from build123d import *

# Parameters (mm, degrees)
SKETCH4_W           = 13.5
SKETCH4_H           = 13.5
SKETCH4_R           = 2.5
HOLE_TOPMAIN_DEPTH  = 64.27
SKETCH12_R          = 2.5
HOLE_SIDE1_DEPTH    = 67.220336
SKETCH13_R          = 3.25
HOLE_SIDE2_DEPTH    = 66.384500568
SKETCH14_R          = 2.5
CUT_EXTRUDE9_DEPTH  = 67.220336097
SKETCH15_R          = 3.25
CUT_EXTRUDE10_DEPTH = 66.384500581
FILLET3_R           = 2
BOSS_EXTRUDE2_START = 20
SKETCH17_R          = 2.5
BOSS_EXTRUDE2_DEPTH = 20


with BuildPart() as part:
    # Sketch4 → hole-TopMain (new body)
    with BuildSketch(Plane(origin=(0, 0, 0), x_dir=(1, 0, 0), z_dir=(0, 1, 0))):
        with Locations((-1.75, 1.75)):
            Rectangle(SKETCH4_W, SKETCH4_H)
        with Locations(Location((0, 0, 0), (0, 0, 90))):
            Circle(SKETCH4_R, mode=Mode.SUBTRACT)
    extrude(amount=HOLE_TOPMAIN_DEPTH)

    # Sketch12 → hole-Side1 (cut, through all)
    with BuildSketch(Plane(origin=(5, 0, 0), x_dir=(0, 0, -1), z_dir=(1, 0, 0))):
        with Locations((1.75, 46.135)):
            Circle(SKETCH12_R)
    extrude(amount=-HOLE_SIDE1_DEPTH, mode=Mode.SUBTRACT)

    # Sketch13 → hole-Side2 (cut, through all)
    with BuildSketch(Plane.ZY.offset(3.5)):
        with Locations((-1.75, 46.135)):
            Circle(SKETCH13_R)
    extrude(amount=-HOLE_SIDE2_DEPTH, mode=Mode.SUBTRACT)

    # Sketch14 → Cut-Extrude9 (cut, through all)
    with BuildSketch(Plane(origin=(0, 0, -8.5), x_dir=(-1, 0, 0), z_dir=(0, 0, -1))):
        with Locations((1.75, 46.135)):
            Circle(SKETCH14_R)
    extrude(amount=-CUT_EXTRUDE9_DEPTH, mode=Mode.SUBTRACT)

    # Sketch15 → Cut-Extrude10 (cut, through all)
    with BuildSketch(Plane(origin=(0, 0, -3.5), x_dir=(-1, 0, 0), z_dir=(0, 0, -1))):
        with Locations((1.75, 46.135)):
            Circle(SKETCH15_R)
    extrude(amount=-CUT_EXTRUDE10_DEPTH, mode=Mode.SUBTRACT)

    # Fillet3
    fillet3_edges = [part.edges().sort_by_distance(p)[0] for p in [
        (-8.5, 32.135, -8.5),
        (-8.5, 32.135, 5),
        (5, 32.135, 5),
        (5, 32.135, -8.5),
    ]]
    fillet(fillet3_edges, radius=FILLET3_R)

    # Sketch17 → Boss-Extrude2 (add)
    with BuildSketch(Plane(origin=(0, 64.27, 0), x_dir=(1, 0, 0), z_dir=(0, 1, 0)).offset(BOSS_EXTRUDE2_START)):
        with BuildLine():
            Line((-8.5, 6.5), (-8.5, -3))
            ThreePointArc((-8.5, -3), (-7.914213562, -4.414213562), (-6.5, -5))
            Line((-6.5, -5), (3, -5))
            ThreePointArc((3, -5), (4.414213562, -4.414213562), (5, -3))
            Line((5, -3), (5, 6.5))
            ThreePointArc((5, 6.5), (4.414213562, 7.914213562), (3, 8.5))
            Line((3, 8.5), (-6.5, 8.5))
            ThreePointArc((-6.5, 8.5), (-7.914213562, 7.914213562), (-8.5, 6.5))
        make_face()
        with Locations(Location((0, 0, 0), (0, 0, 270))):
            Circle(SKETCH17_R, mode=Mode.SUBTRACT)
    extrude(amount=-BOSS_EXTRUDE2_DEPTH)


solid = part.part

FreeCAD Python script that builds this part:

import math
import FreeCAD as App
import Part
import Sketcher

V = App.Vector
Q = App.Units.Quantity


def edges_at(feature, points):
    """Names of the edges that pass closest to the given points."""
    edges = feature.Shape.Edges
    near = lambda p: min(range(len(edges)), key=lambda i: edges[i].distToShape(Part.Vertex(*p))[0])
    return sorted({f"Edge{near(p) + 1}" for p in points})


def add_polygon(sketch, points):
    """Adds a closed chain of lines whose ends are joined by coincident constraints."""
    first, n = sketch.GeometryCount, len(points)
    for a, b in zip(points, points[1:] + points[:1]):
        sketch.addGeometry(Part.LineSegment(App.Vector(*a, 0), App.Vector(*b, 0)), False)
    for i in range(n):
        sketch.addConstraint(Sketcher.Constraint("Coincident", first + i, 2, first + (i + 1) % n, 1))

doc = App.newDocument("Part")
body = doc.addObject("PartDesign::Body", "Body")

sketch1 = body.newObject("Sketcher::SketchObject", "Sketch")
sketch1.AttachmentSupport = (doc.getObject("XZ_Plane"), [""])
sketch1.MapMode = "FlatFace"
add_polygon(sketch1, [(-8.5, -8.5), (-8.5, 5), (5, 5), (5, -8.5)])
sketch1.addGeometry(Part.Circle(V(0, 0, 0), V(0, 0, 1), 2.5), False)
sketch1.addConstraint([
    Sketcher.Constraint("Vertical", 0),
    Sketcher.Constraint("Horizontal", 1),
    Sketcher.Constraint("Vertical", 2),
    Sketcher.Constraint("Horizontal", 3),
    Sketcher.Constraint("Coincident", 4, 3, -1, 1),
    Sketcher.Constraint("Equal", 3, 0),
    Sketcher.Constraint("Diameter", 4, Q("5 mm")),
    Sketcher.Constraint("DistanceX", 1, 1, 1, 2, Q("13.5 mm")),
    Sketcher.Constraint("DistanceY", -1, 1, 0, 2, Q("5 mm")),
    Sketcher.Constraint("DistanceX", -1, 1, 1, 2, Q("5 mm")),
])
pad1 = body.newObject("PartDesign::Pad", "Pad")
pad1.Profile = sketch1
pad1.Length = 64.27
pad1.Reversed = True

sketch2 = body.newObject("Sketcher::SketchObject", "Sketch001")
sketch2.AttachmentSupport = (doc.getObject("YZ_Plane"), [""])
sketch2.MapMode = "FlatFace"
sketch2.AttachmentOffset = App.Placement(V(0, 0, 5), App.Rotation())
sketch2.addGeometry(Part.Circle(V(46.1, -1.8, 0), V(0, 0, 1), 2.5), False)
sketch2.addConstraint([
    Sketcher.Constraint("Diameter", 0, Q("5 mm")),
    Sketcher.Constraint("DistanceY", 0, 3, -1, 1, Q("1.75 mm")),
    Sketcher.Constraint("DistanceX", -1, 1, 0, 3, Q("46.135 mm")),
])
pocket1 = body.newObject("PartDesign::Pocket", "Pocket")
pocket1.Profile = sketch2
pocket1.Type = "ThroughAll"

sketch3 = body.newObject("Sketcher::SketchObject", "Sketch002")
sketch3.AttachmentSupport = (doc.getObject("YZ_Plane"), [""])
sketch3.MapMode = "FlatFace"
sketch3.AttachmentOffset = App.Placement(V(0, 0, -3.5), App.Rotation())
sketch3.addGeometry(Part.Circle(V(46.1, -1.8, 0), V(0, 0, 1), 3.2), False)
sketch3.addConstraint([
    Sketcher.Constraint("Diameter", 0, Q("6.5 mm")),
    Sketcher.Constraint("DistanceY", 0, 3, -1, 1, Q("1.75 mm")),
    Sketcher.Constraint("DistanceX", -1, 1, 0, 3, Q("46.135 mm")),
])
pocket2 = body.newObject("PartDesign::Pocket", "Pocket001")
pocket2.Profile = sketch3
pocket2.Type = "ThroughAll"
pocket2.Reversed = True

sketch4 = body.newObject("Sketcher::SketchObject", "Sketch003")
sketch4.AttachmentSupport = (doc.getObject("XY_Plane"), [""])
sketch4.MapMode = "FlatFace"
sketch4.AttachmentOffset = App.Placement(V(0, 0, -8.5), App.Rotation())
sketch4.addGeometry(Part.Circle(V(-1.8, 46.1, 0), V(0, 0, 1), 2.5), False)
sketch4.addConstraint([
    Sketcher.Constraint("Diameter", 0, Q("5 mm")),
    Sketcher.Constraint("DistanceX", 0, 3, -1, 1, Q("1.75 mm")),
    Sketcher.Constraint("DistanceY", -1, 1, 0, 3, Q("46.135 mm")),
])
pocket3 = body.newObject("PartDesign::Pocket", "Pocket002")
pocket3.Profile = sketch4
pocket3.Type = "ThroughAll"
pocket3.Reversed = True

sketch5 = body.newObject("Sketcher::SketchObject", "Sketch004")
sketch5.AttachmentSupport = (doc.getObject("XY_Plane"), [""])
sketch5.MapMode = "FlatFace"
sketch5.AttachmentOffset = App.Placement(V(0, 0, -3.5), App.Rotation())
sketch5.addGeometry(Part.Circle(V(-1.8, 46.1, 0), V(0, 0, 1), 3.2), False)
sketch5.addConstraint([
    Sketcher.Constraint("Diameter", 0, Q("6.5 mm")),
    Sketcher.Constraint("DistanceX", 0, 3, -1, 1, Q("1.75 mm")),
    Sketcher.Constraint("DistanceY", -1, 1, 0, 3, Q("46.135 mm")),
])
pocket4 = body.newObject("PartDesign::Pocket", "Pocket003")
pocket4.Profile = sketch5
pocket4.Type = "ThroughAll"
pocket4.Reversed = True
doc.recompute()

fillet = body.newObject("PartDesign::Fillet", "Fillet")
fillet.Base = (pocket4, edges_at(pocket4, [
    (-8.5, 32.135, -8.5),
    (-8.5, 32.135, 5),
    (5, 32.135, 5),
    (5, 32.135, -8.5),
]))
fillet.Radius = 2

sketch6 = body.newObject("Sketcher::SketchObject", "Sketch005")
sketch6.AttachmentSupport = (doc.getObject("XZ_Plane"), [""])
sketch6.MapMode = "FlatFace"
sketch6.AttachmentOffset = App.Placement(V(0, 0, -84.27), App.Rotation())
sketch6.addGeometry([
    Part.LineSegment(V(-8.5, -6.5, 0), V(-8.5, 3, 0)),
    Part.ArcOfCircle(Part.Circle(V(-6.5, 3, 0), V(0, 0, 1), 2), math.radians(90), math.radians(180)),
    Part.LineSegment(V(-6.5, 5, 0), V(3, 5, 0)),
    Part.ArcOfCircle(Part.Circle(V(3, 3, 0), V(0, 0, 1), 2), math.radians(0), math.radians(90)),
    Part.LineSegment(V(5, 3, 0), V(5, -6.5, 0)),
    Part.ArcOfCircle(Part.Circle(V(3, -6.5, 0), V(0, 0, 1), 2), math.radians(-90), math.radians(0)),
    Part.LineSegment(V(3, -8.5, 0), V(-6.5, -8.5, 0)),
    Part.ArcOfCircle(Part.Circle(V(-6.5, -6.5, 0), V(0, 0, 1), 2), math.radians(-180), math.radians(-90)),
    Part.Circle(V(0, 0, 0), V(0, 0, 1), 2.5),
], False)
sketch6.addConstraint([
    Sketcher.Constraint("Tangent", 0, 2, 1, 2),
    Sketcher.Constraint("Tangent", 1, 1, 2, 1),
    Sketcher.Constraint("Tangent", 2, 2, 3, 2),
    Sketcher.Constraint("Tangent", 3, 1, 4, 1),
    Sketcher.Constraint("Tangent", 4, 2, 5, 2),
    Sketcher.Constraint("Tangent", 5, 1, 6, 1),
    Sketcher.Constraint("Tangent", 6, 2, 7, 2),
    Sketcher.Constraint("Tangent", 7, 1, 0, 1),
    Sketcher.Constraint("Vertical", 0),
    Sketcher.Constraint("Horizontal", 2),
    Sketcher.Constraint("Vertical", 4),
    Sketcher.Constraint("Horizontal", 6),
    Sketcher.Constraint("Coincident", 8, 3, -1, 1),
    Sketcher.Constraint("Equal", 1, 3),
    Sketcher.Constraint("Equal", 3, 5),
    Sketcher.Constraint("Equal", 5, 7),
    Sketcher.Constraint("Equal", 6, 0),
    Sketcher.Constraint("Diameter", 8, Q("5 mm")),
    Sketcher.Constraint("Radius", 1, Q("2 mm")),
    Sketcher.Constraint("DistanceX", 2, 1, 2, 2, Q("9.5 mm")),
    Sketcher.Constraint("DistanceY", -1, 1, 1, 3, Q("3 mm")),
    Sketcher.Constraint("DistanceX", -1, 1, 3, 3, Q("3 mm")),
])
pad2 = body.newObject("PartDesign::Pad", "Pad001")
pad2.Profile = sketch6
pad2.Length = 20

doc.recompute()
